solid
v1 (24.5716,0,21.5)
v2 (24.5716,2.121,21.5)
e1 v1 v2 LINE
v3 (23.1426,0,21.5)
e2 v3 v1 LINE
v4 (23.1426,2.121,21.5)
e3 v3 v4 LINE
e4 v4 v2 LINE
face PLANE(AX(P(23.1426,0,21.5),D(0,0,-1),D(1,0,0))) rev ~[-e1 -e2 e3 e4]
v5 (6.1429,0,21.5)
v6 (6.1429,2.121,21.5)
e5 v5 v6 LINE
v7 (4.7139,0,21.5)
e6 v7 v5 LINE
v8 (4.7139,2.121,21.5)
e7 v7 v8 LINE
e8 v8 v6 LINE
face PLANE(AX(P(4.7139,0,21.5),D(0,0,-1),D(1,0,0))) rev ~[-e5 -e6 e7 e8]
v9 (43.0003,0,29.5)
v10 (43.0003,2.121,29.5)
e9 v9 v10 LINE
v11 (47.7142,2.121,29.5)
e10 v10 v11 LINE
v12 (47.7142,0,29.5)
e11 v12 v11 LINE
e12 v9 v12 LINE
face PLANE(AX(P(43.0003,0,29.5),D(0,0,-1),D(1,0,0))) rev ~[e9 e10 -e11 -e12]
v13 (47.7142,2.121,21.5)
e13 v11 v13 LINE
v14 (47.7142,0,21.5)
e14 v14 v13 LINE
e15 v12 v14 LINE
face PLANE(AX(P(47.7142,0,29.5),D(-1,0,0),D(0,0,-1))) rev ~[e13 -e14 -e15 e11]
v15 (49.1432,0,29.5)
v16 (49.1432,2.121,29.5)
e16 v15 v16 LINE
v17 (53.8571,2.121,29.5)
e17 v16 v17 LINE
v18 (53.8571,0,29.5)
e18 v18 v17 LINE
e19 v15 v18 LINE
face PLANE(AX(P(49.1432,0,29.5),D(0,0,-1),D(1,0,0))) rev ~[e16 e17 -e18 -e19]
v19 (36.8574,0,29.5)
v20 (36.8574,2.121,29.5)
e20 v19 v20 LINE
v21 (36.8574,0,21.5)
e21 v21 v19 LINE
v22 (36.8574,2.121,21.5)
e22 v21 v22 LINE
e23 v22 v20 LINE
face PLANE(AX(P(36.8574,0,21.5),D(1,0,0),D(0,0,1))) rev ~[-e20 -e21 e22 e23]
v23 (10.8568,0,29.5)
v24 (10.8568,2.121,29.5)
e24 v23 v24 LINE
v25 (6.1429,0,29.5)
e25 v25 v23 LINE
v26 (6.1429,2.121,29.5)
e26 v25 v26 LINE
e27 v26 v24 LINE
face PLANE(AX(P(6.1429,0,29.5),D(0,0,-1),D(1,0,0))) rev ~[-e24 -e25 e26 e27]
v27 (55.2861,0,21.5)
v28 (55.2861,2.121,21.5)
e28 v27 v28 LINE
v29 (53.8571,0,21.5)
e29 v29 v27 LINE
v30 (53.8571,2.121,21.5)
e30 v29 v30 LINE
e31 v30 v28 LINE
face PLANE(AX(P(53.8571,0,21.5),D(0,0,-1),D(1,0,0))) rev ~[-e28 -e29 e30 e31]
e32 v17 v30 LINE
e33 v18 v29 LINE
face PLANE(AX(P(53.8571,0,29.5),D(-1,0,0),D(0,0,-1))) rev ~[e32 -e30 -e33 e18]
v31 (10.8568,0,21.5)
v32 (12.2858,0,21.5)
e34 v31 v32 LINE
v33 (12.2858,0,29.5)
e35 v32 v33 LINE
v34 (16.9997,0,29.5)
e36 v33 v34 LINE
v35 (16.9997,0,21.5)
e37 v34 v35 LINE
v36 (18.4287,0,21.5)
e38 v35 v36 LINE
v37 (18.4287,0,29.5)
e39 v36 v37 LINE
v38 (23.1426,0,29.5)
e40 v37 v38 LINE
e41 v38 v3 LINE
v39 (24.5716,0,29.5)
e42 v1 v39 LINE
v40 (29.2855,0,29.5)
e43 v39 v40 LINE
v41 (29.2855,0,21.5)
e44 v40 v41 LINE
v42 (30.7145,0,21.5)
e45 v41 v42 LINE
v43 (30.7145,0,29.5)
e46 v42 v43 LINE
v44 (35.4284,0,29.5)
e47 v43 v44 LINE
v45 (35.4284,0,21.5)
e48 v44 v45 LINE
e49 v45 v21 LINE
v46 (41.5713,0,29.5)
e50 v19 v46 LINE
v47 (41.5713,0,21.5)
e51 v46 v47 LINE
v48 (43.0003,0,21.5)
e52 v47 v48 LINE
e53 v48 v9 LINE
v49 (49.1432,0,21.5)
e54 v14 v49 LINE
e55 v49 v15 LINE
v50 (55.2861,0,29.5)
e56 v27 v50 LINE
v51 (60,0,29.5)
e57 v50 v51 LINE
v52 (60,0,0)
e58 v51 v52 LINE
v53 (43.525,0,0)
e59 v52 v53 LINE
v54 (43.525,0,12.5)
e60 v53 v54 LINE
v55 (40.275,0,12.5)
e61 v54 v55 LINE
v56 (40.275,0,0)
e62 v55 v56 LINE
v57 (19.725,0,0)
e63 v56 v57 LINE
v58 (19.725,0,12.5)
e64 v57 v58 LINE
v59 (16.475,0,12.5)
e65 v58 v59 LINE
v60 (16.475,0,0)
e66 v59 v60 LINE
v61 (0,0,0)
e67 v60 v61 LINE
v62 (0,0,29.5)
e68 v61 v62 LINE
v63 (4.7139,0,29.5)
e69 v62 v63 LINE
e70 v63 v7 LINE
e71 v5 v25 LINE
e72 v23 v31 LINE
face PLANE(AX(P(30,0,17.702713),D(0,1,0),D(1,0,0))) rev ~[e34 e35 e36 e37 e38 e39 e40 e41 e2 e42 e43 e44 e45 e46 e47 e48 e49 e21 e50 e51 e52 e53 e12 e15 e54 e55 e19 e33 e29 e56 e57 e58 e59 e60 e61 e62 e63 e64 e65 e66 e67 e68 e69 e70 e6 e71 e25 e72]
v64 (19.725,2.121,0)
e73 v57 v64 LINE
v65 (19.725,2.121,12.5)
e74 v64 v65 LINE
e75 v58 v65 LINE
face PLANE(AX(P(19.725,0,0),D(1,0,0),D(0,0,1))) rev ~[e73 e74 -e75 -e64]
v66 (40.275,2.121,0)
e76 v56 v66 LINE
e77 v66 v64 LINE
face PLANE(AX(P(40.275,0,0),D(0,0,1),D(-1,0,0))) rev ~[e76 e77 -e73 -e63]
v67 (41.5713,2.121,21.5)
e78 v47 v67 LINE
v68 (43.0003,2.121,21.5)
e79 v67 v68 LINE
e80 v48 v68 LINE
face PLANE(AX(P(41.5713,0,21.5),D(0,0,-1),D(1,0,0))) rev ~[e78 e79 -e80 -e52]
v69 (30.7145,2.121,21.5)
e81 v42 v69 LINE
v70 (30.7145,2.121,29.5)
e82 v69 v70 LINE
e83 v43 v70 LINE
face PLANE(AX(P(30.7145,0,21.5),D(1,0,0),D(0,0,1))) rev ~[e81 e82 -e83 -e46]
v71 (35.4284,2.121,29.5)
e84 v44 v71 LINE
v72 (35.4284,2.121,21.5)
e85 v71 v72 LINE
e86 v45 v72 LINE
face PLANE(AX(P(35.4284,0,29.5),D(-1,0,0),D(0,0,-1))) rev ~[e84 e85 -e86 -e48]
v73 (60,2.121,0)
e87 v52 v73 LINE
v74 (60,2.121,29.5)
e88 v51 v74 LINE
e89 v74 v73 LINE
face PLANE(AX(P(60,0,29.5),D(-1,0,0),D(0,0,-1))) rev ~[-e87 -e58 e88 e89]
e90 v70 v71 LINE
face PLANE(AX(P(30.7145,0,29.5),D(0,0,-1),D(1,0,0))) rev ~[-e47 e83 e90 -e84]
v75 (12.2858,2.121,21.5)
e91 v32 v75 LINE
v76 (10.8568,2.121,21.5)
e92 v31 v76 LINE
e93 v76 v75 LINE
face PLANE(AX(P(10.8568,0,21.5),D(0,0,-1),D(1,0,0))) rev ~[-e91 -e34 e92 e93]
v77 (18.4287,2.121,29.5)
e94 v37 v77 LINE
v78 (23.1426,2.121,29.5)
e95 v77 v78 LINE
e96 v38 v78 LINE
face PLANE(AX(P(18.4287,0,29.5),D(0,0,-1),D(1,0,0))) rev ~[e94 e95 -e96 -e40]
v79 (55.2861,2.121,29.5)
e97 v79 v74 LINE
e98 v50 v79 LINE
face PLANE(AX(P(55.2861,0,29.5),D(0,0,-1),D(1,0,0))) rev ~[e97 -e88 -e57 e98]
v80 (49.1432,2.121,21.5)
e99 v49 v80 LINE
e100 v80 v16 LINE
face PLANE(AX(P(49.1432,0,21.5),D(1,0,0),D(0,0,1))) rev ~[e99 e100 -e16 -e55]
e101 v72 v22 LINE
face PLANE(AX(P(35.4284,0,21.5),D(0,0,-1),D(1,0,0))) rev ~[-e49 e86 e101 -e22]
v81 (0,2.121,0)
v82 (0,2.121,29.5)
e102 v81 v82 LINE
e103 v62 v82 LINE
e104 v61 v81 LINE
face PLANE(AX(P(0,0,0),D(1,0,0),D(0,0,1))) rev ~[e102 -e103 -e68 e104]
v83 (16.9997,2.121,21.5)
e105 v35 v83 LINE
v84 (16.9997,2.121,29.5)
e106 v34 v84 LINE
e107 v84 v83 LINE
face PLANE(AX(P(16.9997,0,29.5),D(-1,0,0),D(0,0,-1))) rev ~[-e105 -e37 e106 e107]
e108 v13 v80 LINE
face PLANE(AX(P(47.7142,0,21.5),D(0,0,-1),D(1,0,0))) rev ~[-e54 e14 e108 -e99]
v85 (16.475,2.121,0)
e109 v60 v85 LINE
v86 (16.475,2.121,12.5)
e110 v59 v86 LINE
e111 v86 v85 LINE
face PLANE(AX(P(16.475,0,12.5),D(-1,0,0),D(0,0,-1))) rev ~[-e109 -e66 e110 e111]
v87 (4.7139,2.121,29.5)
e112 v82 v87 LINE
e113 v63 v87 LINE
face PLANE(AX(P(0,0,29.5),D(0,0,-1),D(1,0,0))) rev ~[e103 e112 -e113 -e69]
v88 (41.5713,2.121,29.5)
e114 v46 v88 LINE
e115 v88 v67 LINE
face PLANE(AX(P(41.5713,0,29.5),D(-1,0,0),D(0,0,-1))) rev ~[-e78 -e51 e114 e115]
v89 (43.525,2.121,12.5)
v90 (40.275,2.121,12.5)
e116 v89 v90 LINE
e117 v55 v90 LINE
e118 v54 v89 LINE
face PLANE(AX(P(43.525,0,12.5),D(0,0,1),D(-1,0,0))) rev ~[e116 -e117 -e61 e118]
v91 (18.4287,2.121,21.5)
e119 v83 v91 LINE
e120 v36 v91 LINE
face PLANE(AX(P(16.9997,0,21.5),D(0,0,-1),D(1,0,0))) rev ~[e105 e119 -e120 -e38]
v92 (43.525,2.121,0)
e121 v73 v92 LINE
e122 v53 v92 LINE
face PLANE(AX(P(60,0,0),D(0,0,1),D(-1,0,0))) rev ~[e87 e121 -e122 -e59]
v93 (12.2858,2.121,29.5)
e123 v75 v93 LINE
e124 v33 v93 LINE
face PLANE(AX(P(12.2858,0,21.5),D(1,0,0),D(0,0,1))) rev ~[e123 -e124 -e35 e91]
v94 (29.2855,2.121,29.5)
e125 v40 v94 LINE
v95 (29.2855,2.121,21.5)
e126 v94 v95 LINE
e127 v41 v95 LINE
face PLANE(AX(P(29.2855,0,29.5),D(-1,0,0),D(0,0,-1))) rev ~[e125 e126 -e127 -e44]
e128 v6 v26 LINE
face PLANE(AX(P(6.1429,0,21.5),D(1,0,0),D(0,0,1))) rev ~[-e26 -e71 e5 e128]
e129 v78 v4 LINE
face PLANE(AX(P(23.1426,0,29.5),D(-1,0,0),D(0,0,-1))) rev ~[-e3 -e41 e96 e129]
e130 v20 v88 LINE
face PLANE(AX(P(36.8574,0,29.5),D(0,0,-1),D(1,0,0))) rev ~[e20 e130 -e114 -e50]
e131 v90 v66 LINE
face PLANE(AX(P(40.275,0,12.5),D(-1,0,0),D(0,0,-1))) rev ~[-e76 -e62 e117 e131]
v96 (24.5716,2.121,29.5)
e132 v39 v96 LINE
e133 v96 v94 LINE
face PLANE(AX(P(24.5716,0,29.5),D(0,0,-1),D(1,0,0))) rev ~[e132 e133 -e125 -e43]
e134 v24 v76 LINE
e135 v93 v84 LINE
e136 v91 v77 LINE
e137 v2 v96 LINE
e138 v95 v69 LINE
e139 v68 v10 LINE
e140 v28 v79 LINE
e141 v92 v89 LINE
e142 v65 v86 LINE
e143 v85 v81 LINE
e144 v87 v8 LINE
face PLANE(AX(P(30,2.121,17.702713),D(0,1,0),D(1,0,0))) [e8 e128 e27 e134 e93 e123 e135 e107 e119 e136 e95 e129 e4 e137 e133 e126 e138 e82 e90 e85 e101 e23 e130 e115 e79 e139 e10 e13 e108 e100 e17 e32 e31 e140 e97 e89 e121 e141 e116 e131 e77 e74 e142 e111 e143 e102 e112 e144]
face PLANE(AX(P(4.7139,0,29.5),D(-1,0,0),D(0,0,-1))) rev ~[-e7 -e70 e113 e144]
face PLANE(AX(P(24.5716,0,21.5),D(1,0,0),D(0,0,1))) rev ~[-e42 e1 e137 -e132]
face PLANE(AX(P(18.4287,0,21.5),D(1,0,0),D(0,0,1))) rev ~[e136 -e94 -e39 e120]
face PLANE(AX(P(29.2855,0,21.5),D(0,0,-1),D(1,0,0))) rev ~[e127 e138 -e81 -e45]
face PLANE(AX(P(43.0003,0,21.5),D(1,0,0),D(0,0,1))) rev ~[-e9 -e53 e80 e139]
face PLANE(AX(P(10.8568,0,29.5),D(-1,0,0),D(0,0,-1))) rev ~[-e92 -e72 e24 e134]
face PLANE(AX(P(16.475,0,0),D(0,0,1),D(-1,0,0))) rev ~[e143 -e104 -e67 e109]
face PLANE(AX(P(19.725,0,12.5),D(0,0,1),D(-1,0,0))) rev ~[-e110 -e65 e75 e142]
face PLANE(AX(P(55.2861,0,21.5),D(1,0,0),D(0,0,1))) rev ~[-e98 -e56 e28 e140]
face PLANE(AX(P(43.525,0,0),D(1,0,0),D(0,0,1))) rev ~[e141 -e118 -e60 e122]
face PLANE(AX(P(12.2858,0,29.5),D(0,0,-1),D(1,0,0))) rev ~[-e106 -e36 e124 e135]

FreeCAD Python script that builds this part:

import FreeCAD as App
import Part
import Sketcher

V = App.Vector


def add_polygon(sketch, points):
    """Adds a closed chain of lines whose ends are joined by coincident constraints."""
    first, n = sketch.GeometryCount, len(points)
    for a, b in zip(points, points[1:] + points[:1]):
        sketch.addGeometry(Part.LineSegment(App.Vector(*a, 0), App.Vector(*b, 0)), False)
    for i in range(n):
        sketch.addConstraint(Sketcher.Constraint("Coincident", first + i, 2, first + (i + 1) % n, 1))

doc = App.newDocument("Part")
body = doc.addObject("PartDesign::Body", "Body")

sketch1 = doc.addObject("Sketcher::SketchObject", "Sketch")
body.addObject(sketch1)
sketch1.AttachmentSupport = (doc.XZ_Plane, [""])
sketch1.MapMode = "FlatFace"
add_polygon(sketch1, [(0, 0), (0, 29.5), (4.7, 29.5), (4.7, 21.5), (6.1, 21.5), (6.1, 29.5), (10.9, 29.5), (10.9, 21.5), (12.3, 21.5), (12.3, 29.5), (17, 29.5), (17, 21.5), (18.4, 21.5), (18.4, 29.5), (23.1, 29.5), (23.1, 21.5), (24.6, 21.5), (24.6, 29.5), (29.3, 29.5), (29.3, 21.5), (30.7, 21.5), (30.7, 29.5), (35.4, 29.5), (35.4, 21.5), (36.9, 21.5), (36.9, 29.5), (41.6, 29.5), (41.6, 21.5), (43, 21.5), (43, 29.5), (47.7, 29.5), (47.7, 21.5), (49.1, 21.5), (49.1, 29.5), (53.9, 29.5), (53.9, 21.5), (55.3, 21.5), (55.3, 29.5), (60, 29.5), (60, 0), (43.5, 0), (43.5, 12.5), (40.3, 12.5), (40.3, 0), (19.7, 0), (19.7, 12.5), (16.5, 12.5), (16.5, 0)])
sketch1.addConstraint(Sketcher.Constraint("Vertical", 0))
sketch1.addConstraint(Sketcher.Constraint("Horizontal", 1))
sketch1.addConstraint(Sketcher.Constraint("Vertical", 2))
sketch1.addConstraint(Sketcher.Constraint("Horizontal", 3))
sketch1.addConstraint(Sketcher.Constraint("Vertical", 4))
sketch1.addConstraint(Sketcher.Constraint("Horizontal", 5))
sketch1.addConstraint(Sketcher.Constraint("Vertical", 6))
sketch1.addConstraint(Sketcher.Constraint("Horizontal", 7))
sketch1.addConstraint(Sketcher.Constraint("Vertical", 8))
sketch1.addConstraint(Sketcher.Constraint("Horizontal", 9))
sketch1.addConstraint(Sketcher.Constraint("Vertical", 10))
sketch1.addConstraint(Sketcher.Constraint("Horizontal", 11))
sketch1.addConstraint(Sketcher.Constraint("Vertical", 12))
sketch1.addConstraint(Sketcher.Constraint("Horizontal", 13))
sketch1.addConstraint(Sketcher.Constraint("Vertical", 14))
sketch1.addConstraint(Sketcher.Constraint("Horizontal", 15))
sketch1.addConstraint(Sketcher.Constraint("Vertical", 16))
sketch1.addConstraint(Sketcher.Constraint("Horizontal", 17))
sketch1.addConstraint(Sketcher.Constraint("Vertical", 18))
sketch1.addConstraint(Sketcher.Constraint("Horizontal", 19))
sketch1.addConstraint(Sketcher.Constraint("Vertical", 20))
sketch1.addConstraint(Sketcher.Constraint("Horizontal", 21))
sketch1.addConstraint(Sketcher.Constraint("Vertical", 22))
sketch1.addConstraint(Sketcher.Constraint("Horizontal", 23))
sketch1.addConstraint(Sketcher.Constraint("Vertical", 24))
sketch1.addConstraint(Sketcher.Constraint("Horizontal", 25))
sketch1.addConstraint(Sketcher.Constraint("Vertical", 26))
sketch1.addConstraint(Sketcher.Constraint("Horizontal", 27))
sketch1.addConstraint(Sketcher.Constraint("Vertical", 28))
sketch1.addConstraint(Sketcher.Constraint("Horizontal", 29))
sketch1.addConstraint(Sketcher.Constraint("Vertical", 30))
sketch1.addConstraint(Sketcher.Constraint("Horizontal", 31))
sketch1.addConstraint(Sketcher.Constraint("Vertical", 32))
sketch1.addConstraint(Sketcher.Constraint("Horizontal", 33))
sketch1.addConstraint(Sketcher.Constraint("Vertical", 34))
sketch1.addConstraint(Sketcher.Constraint("Horizontal", 35))
sketch1.addConstraint(Sketcher.Constraint("Vertical", 36))
sketch1.addConstraint(Sketcher.Constraint("Horizontal", 37))
sketch1.addConstraint(Sketcher.Constraint("Vertical", 38))
sketch1.addConstraint(Sketcher.Constraint("Horizontal", 39))
sketch1.addConstraint(Sketcher.Constraint("Vertical", 40))
sketch1.addConstraint(Sketcher.Constraint("Horizontal", 41))
sketch1.addConstraint(Sketcher.Constraint("Vertical", 42))
sketch1.addConstraint(Sketcher.Constraint("Horizontal", 43))
sketch1.addConstraint(Sketcher.Constraint("Vertical", 44))
sketch1.addConstraint(Sketcher.Constraint("Horizontal", 45))
sketch1.addConstraint(Sketcher.Constraint("Vertical", 46))
sketch1.addConstraint(Sketcher.Constraint("Horizontal", 47))
sketch1.addConstraint(Sketcher.Constraint("Coincident", 47, 2, -1, 1))
sketch1.addConstraint(Sketcher.Constraint("PointOnObject", 38, 2, -1))
sketch1.addConstraint(Sketcher.Constraint("PointOnObject", 42, 2, -1))
sketch1.addConstraint(Sketcher.Constraint("Horizontal", 1, 2, 4, 2))
sketch1.addConstraint(Sketcher.Constraint("Horizontal", 3, 2, 6, 2))
sketch1.addConstraint(Sketcher.Constraint("Horizontal", 5, 2, 8, 2))
sketch1.addConstraint(Sketcher.Constraint("Horizontal", 7, 2, 10, 2))
sketch1.addConstraint(Sketcher.Constraint("Horizontal", 9, 2, 12, 2))
sketch1.addConstraint(Sketcher.Constraint("Horizontal", 11, 2, 14, 2))
sketch1.addConstraint(Sketcher.Constraint("Horizontal", 13, 2, 16, 2))
sketch1.addConstraint(Sketcher.Constraint("Horizontal", 15, 2, 18, 2))
sketch1.addConstraint(Sketcher.Constraint("Horizontal", 17, 2, 20, 2))
sketch1.addConstraint(Sketcher.Constraint("Horizontal", 19, 2, 22, 2))
sketch1.addConstraint(Sketcher.Constraint("Horizontal", 21, 2, 24, 2))
sketch1.addConstraint(Sketcher.Constraint("Horizontal", 23, 2, 26, 2))
sketch1.addConstraint(Sketcher.Constraint("Horizontal", 25, 2, 28, 2))
sketch1.addConstraint(Sketcher.Constraint("Horizontal", 27, 2, 30, 2))
sketch1.addConstraint(Sketcher.Constraint("Horizontal", 29, 2, 32, 2))
sketch1.addConstraint(Sketcher.Constraint("Horizontal", 31, 2, 34, 2))
sketch1.addConstraint(Sketcher.Constraint("Horizontal", 33, 2, 36, 2))
sketch1.addConstraint(Sketcher.Constraint("Horizontal", 41, 2, 44, 2))
sketch1.addConstraint(Sketcher.Constraint("Equal", 1, 5))
sketch1.addConstraint(Sketcher.Constraint("Equal", 3, 7))
sketch1.addConstraint(Sketcher.Constraint("Equal", 5, 9))
sketch1.addConstraint(Sketcher.Constraint("Equal", 7, 11))
sketch1.addConstraint(Sketcher.Constraint("Equal", 9, 13))
sketch1.addConstraint(Sketcher.Constraint("Equal", 11, 15))
sketch1.addConstraint(Sketcher.Constraint("Equal", 13, 17))
sketch1.addConstraint(Sketcher.Constraint("Equal", 15, 19))
sketch1.addConstraint(Sketcher.Constraint("Equal", 17, 21))
sketch1.addConstraint(Sketcher.Constraint("Equal", 19, 23))
sketch1.addConstraint(Sketcher.Constraint("Equal", 21, 25))
sketch1.addConstraint(Sketcher.Constraint("Equal", 23, 27))
sketch1.addConstraint(Sketcher.Constraint("Equal", 25, 29))
sketch1.addConstraint(Sketcher.Constraint("Equal", 27, 31))
sketch1.addConstraint(Sketcher.Constraint("Equal", 29, 33))
sketch1.addConstraint(Sketcher.Constraint("Equal", 31, 35))
sketch1.addConstraint(Sketcher.Constraint("Equal", 33, 37))
sketch1.addConstraint(Sketcher.Constraint("Equal", 41, 45))
sketch1.addConstraint(Sketcher.Constraint("Equal", 39, 47))
sketch1.addConstraint(Sketcher.Constraint("DistanceY", 2, 2, 2, 1, 8.0))
sketch1.addConstraint(Sketcher.Constraint("DistanceY", 0, 1, 0, 2, 29.5))
sketch1.addConstraint(Sketcher.Constraint("DistanceY", 40, 1, 40, 2, 12.5))
sketch1.addConstraint(Sketcher.Constraint("DistanceX", -1, 1, 37, 2, 60.0))
sketch1.addConstraint(Sketcher.Constraint("DistanceX", 41, 2, 41, 1, 3.25))
sketch1.addConstraint(Sketcher.Constraint("DistanceX", 43, 2, 43, 1, 20.55))
sketch1.addConstraint(Sketcher.Constraint("DistanceX", 3, 1, 3, 2, 1.429))
pad1 = doc.addObject("PartDesign::Pad", "Pad")
body.addObject(pad1)
pad1.Profile = sketch1
pad1.Length = 2.121
pad1.Reversed = True

doc.recompute()
